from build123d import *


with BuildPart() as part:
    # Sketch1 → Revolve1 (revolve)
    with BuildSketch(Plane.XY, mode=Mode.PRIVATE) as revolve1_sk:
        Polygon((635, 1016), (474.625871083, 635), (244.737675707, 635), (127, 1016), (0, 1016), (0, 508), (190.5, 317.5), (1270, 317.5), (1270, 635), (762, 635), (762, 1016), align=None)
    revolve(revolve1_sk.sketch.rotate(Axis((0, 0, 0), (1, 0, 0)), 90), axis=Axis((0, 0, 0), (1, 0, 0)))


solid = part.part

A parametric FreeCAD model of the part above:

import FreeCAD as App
import Part
import Sketcher
from FreeCAD import Vector
Q = App.Units.Quantity


def add_polygon(sketch, points):
    """Adds a closed chain of lines whose ends are joined by coincident constraints."""
    first, n = sketch.GeometryCount, len(points)
    for a, b in zip(points, points[1:] + points[:1]):
        sketch.addGeometry(Part.LineSegment(App.Vector(*a, 0), App.Vector(*b, 0)), False)
    for i in range(n):
        sketch.addConstraint(Sketcher.Constraint("Coincident", first + i, 2, first + (i + 1) % n, 1))

doc = App.newDocument("Part")
body = doc.addObject("PartDesign::Body", "Body")

sketch1 = body.newObject("Sketcher::SketchObject", "Sketch")
sketch1.AttachmentSupport = (doc.getObject("XY_Plane"), [""])
sketch1.MapMode = "FlatFace"
add_polygon(sketch1, [(635, 1016), (475, 635), (245, 635), (127, 1016), (0, 1016), (0, 508), (190, 318), (1270, 318), (1270, 635), (762, 635), (762, 1016)])
sketch1.addConstraint(Sketcher.Constraint("Horizontal", 1))
sketch1.addConstraint(Sketcher.Constraint("Horizontal", 3))
sketch1.addConstraint(Sketcher.Constraint("Vertical", 4))
sketch1.addConstraint(Sketcher.Constraint("Horizontal", 6))
sketch1.addConstraint(Sketcher.Constraint("Vertical", 7))
sketch1.addConstraint(Sketcher.Constraint("Horizontal", 8))
sketch1.addConstraint(Sketcher.Constraint("Vertical", 9))
sketch1.addConstraint(Sketcher.Constraint("Horizontal", 10))
sketch1.addConstraint(Sketcher.Constraint("PointOnObject", 3, 2, -2))
sketch1.addConstraint(Sketcher.Constraint("Horizontal", 1, 2, 7, 2))
sketch1.addConstraint(Sketcher.Constraint("Horizontal", 3, 2, 9, 2))
sketch1.addConstraint(Sketcher.Constraint("Equal", 3, 10))
sketch1.addConstraint(Sketcher.Constraint("Equal", 8, 4))
sketch1.addConstraint(Sketcher.Constraint("DistanceX", 3, 2, 3, 1, Q("5 in")))
sketch1.addConstraint(Sketcher.Constraint("DistanceX", 8, 2, 8, 1, Q("20 in")))
sketch1.addConstraint(Sketcher.Constraint("DistanceY", 9, 1, 9, 2, Q("15 in")))
sketch1.addConstraint(Sketcher.Constraint("DistanceX", 6, 1, 6, 2, Q("42.5 in")))
sketch1.addConstraint(Sketcher.Constraint("DistanceY", 7, 1, 7, 2, Q("12.5 in")))
sketch1.addConstraint(Sketcher.Constraint("DistanceY", -1, 1, 0, 2, Q("25 in")))
sketch1.addConstraint(Sketcher.Constraint("DistanceX", -1, 1, 6, 2, Q("50 in")))
sketch1.addConstraint(Sketcher.Constraint("Distance", 0, Q("16.2747001 in")))
sketch1.addConstraint(Sketcher.Constraint("Distance", 2, 398.777081))
revolution = body.newObject("PartDesign::Revolution", "Revolution")
revolution.Profile = sketch1
revolution.ReferenceAxis = (sketch1, ["H_Axis"])
revolution.Angle = 360

doc.recompute()
